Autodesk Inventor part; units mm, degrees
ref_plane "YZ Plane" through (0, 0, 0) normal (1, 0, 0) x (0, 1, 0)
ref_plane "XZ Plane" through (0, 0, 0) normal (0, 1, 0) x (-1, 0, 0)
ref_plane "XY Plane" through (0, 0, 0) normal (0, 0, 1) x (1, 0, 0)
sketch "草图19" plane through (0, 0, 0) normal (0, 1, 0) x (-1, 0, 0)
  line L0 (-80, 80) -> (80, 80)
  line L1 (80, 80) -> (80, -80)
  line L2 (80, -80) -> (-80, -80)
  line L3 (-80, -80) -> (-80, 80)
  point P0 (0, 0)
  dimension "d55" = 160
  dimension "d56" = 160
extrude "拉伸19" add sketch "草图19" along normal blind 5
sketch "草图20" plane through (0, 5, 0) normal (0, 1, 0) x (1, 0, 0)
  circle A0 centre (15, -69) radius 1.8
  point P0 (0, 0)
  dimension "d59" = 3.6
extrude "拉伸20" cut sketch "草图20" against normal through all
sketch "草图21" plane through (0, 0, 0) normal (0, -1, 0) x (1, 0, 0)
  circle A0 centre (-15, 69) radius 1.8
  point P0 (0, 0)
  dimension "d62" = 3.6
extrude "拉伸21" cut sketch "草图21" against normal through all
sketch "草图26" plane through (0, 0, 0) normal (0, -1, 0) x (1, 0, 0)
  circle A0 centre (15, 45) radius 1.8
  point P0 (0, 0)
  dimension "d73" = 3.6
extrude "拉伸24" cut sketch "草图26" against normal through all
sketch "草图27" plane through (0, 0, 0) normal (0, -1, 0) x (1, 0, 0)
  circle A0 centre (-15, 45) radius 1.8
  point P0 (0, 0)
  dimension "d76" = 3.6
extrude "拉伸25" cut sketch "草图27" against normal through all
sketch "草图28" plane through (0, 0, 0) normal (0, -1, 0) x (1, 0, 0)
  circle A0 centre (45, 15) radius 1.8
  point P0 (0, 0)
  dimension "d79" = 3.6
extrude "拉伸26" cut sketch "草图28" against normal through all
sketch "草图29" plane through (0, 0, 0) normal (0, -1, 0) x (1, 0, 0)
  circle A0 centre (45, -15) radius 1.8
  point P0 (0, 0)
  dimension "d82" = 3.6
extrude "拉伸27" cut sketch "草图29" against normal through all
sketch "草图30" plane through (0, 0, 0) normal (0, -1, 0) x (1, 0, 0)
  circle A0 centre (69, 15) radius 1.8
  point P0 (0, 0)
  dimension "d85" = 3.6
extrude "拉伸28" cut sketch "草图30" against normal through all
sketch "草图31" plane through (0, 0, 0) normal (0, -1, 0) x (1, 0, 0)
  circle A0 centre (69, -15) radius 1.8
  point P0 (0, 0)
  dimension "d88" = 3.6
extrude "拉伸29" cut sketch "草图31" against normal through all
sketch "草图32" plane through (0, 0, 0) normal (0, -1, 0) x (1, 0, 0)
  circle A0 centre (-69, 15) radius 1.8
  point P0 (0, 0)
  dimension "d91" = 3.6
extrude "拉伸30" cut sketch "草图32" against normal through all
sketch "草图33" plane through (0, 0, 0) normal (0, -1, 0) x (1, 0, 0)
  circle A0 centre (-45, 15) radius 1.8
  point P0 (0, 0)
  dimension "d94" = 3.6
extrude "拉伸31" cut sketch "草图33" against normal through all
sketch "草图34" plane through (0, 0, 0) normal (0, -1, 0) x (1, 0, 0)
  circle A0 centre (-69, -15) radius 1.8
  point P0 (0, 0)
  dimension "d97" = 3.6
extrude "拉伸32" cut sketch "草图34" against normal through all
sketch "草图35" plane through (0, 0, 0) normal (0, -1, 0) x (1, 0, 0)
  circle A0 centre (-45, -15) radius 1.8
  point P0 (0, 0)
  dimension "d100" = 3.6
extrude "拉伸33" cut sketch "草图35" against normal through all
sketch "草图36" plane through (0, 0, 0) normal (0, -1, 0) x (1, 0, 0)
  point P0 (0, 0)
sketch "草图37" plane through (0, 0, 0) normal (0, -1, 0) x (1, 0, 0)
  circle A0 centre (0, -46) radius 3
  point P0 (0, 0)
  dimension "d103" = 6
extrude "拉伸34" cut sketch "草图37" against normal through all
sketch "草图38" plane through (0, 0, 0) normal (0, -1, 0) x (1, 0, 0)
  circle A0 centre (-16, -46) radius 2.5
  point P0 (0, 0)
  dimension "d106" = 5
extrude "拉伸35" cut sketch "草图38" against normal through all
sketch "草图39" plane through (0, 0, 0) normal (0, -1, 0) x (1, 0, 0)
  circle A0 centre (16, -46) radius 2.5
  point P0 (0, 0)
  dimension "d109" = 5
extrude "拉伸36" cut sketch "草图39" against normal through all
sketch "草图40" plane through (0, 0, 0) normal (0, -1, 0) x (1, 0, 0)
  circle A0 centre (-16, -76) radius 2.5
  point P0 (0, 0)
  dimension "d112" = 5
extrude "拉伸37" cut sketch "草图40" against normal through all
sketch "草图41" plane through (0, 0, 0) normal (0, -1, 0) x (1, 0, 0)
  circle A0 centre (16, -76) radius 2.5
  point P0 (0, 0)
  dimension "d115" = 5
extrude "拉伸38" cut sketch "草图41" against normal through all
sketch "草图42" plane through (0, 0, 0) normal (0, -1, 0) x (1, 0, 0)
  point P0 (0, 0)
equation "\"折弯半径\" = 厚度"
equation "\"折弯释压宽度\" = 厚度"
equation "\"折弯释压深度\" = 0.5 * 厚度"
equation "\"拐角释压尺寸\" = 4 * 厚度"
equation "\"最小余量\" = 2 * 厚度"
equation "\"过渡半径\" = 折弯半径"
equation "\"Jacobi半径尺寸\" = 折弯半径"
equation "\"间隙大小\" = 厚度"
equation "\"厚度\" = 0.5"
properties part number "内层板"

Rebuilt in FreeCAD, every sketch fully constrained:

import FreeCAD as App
import Part
import Sketcher


def add_polygon(sketch, points):
    """Adds a closed chain of lines whose ends are joined by coincident constraints."""
    first, n = sketch.GeometryCount, len(points)
    for a, b in zip(points, points[1:] + points[:1]):
        sketch.addGeometry(Part.LineSegment(App.Vector(*a, 0), App.Vector(*b, 0)), False)
    for i in range(n):
        sketch.addConstraint(Sketcher.Constraint("Coincident", first + i, 2, first + (i + 1) % n, 1))

doc = App.newDocument("Part")
body = doc.addObject("PartDesign::Body", "Body")

# Sketch on XZ plane
sketch1 = body.newObject("Sketcher::SketchObject", "Sketch")
sketch1.AttachmentSupport = (doc.getObject("XZ_Plane"), [""])
sketch1.MapMode = "FlatFace"
add_polygon(sketch1, [(-80, 80), (80, 80), (80, -80), (-80, -80)])  # lines 0-3
sketch1.addConstraint(Sketcher.Constraint("Horizontal", 0))
sketch1.addConstraint(Sketcher.Constraint("Vertical", 1))
sketch1.addConstraint(Sketcher.Constraint("Horizontal", 2))
sketch1.addConstraint(Sketcher.Constraint("Vertical", 3))
sketch1.addConstraint(Sketcher.Constraint("Symmetric", 0, 2, 2, 2, -1, 1))
sketch1.addConstraint(Sketcher.Constraint("Equal", 2, 1))
sketch1.addConstraint(Sketcher.Constraint("DistanceX", 0, 1, 0, 2, 160.0))
pad1 = body.newObject("PartDesign::Pad", "Pad")
pad1.Profile = sketch1
pad1.Length = 5
pad1.Reversed = True

# Sketch on XZ plane
sketch2 = body.newObject("Sketcher::SketchObject", "Sketch001")
sketch2.AttachmentSupport = (doc.getObject("XZ_Plane"), [""])
sketch2.MapMode = "FlatFace"
sketch2.AttachmentOffset = App.Placement(App.Vector(0, 0, -5), App.Rotation())
sketch2.addGeometry(Part.Circle(App.Vector(15, 69, 0), App.Vector(0, 0, 1), 1.8), False)
sketch2.addConstraint(Sketcher.Constraint("Diameter", 0, 3.6))
sketch2.addConstraint(Sketcher.Constraint("DistanceX", -1, 1, 0, 3, 15.0))
sketch2.addConstraint(Sketcher.Constraint("DistanceY", -1, 1, 0, 3, 69.0))
pocket1 = body.newObject("PartDesign::Pocket", "Pocket")
pocket1.Profile = sketch2
pocket1.Type = "ThroughAll"
pocket1.Reversed = True

# Sketch on XZ plane
sketch3 = body.newObject("Sketcher::SketchObject", "Sketch002")
sketch3.AttachmentSupport = (doc.getObject("XZ_Plane"), [""])
sketch3.MapMode = "FlatFace"
sketch3.addGeometry(Part.Circle(App.Vector(-15, 69, 0), App.Vector(0, 0, 1), 1.8), False)
sketch3.addConstraint(Sketcher.Constraint("Diameter", 0, 3.6))
sketch3.addConstraint(Sketcher.Constraint("DistanceX", 0, 3, -1, 1, 15.0))
sketch3.addConstraint(Sketcher.Constraint("DistanceY", -1, 1, 0, 3, 69.0))
pocket2 = body.newObject("PartDesign::Pocket", "Pocket001")
pocket2.Profile = sketch3
pocket2.Type = "ThroughAll"

# Sketch on XZ plane
sketch4 = body.newObject("Sketcher::SketchObject", "Sketch003")
sketch4.AttachmentSupport = (doc.getObject("XZ_Plane"), [""])
sketch4.MapMode = "FlatFace"
sketch4.addGeometry(Part.Circle(App.Vector(15, 45, 0), App.Vector(0, 0, 1), 1.8), False)
sketch4.addConstraint(Sketcher.Constraint("Diameter", 0, 3.6))
sketch4.addConstraint(Sketcher.Constraint("DistanceX", -1, 1, 0, 3, 15.0))
sketch4.addConstraint(Sketcher.Constraint("DistanceY", -1, 1, 0, 3, 45.0))
pocket3 = body.newObject("PartDesign::Pocket", "Pocket002")
pocket3.Profile = sketch4
pocket3.Type = "ThroughAll"

# Sketch on XZ plane
sketch5 = body.newObject("Sketcher::SketchObject", "Sketch004")
sketch5.AttachmentSupport = (doc.getObject("XZ_Plane"), [""])
sketch5.MapMode = "FlatFace"
sketch5.addGeometry(Part.Circle(App.Vector(-15, 45, 0), App.Vector(0, 0, 1), 1.8), False)
sketch5.addConstraint(Sketcher.Constraint("Diameter", 0, 3.6))
sketch5.addConstraint(Sketcher.Constraint("DistanceX", 0, 3, -1, 1, 15.0))
sketch5.addConstraint(Sketcher.Constraint("DistanceY", -1, 1, 0, 3, 45.0))
pocket4 = body.newObject("PartDesign::Pocket", "Pocket003")
pocket4.Profile = sketch5
pocket4.Type = "ThroughAll"

# Sketch on XZ plane
sketch6 = body.newObject("Sketcher::SketchObject", "Sketch005")
sketch6.AttachmentSupport = (doc.getObject("XZ_Plane"), [""])
sketch6.MapMode = "FlatFace"
sketch6.addGeometry(Part.Circle(App.Vector(45, 15, 0), App.Vector(0, 0, 1), 1.8), False)
sketch6.addConstraint(Sketcher.Constraint("Diameter", 0, 3.6))
sketch6.addConstraint(Sketcher.Constraint("DistanceX", -1, 1, 0, 3, 45.0))
sketch6.addConstraint(Sketcher.Constraint("DistanceY", -1, 1, 0, 3, 15.0))
pocket5 = body.newObject("PartDesign::Pocket", "Pocket004")
pocket5.Profile = sketch6
pocket5.Type = "ThroughAll"

# Sketch on XZ plane
sketch7 = body.newObject("Sketcher::SketchObject", "Sketch006")
sketch7.AttachmentSupport = (doc.getObject("XZ_Plane"), [""])
sketch7.MapMode = "FlatFace"
sketch7.addGeometry(Part.Circle(App.Vector(45, -15, 0), App.Vector(0, 0, 1), 1.8), False)
sketch7.addConstraint(Sketcher.Constraint("Diameter", 0, 3.6))
sketch7.addConstraint(Sketcher.Constraint("DistanceX", -1, 1, 0, 3, 45.0))
sketch7.addConstraint(Sketcher.Constraint("DistanceY", 0, 3, -1, 1, 15.0))
pocket6 = body.newObject("PartDesign::Pocket", "Pocket005")
pocket6.Profile = sketch7
pocket6.Type = "ThroughAll"

# Sketch on XZ plane
sketch8 = body.newObject("Sketcher::SketchObject", "Sketch007")
sketch8.AttachmentSupport = (doc.getObject("XZ_Plane"), [""])
sketch8.MapMode = "FlatFace"
sketch8.addGeometry(Part.Circle(App.Vector(69, 15, 0), App.Vector(0, 0, 1), 1.8), False)
sketch8.addConstraint(Sketcher.Constraint("Diameter", 0, 3.6))
sketch8.addConstraint(Sketcher.Constraint("DistanceX", -1, 1, 0, 3, 69.0))
sketch8.addConstraint(Sketcher.Constraint("DistanceY", -1, 1, 0, 3, 15.0))
pocket7 = body.newObject("PartDesign::Pocket", "Pocket006")
pocket7.Profile = sketch8
pocket7.Type = "ThroughAll"

# Sketch on XZ plane
sketch9 = body.newObject("Sketcher::SketchObject", "Sketch008")
sketch9.AttachmentSupport = (doc.getObject("XZ_Plane"), [""])
sketch9.MapMode = "FlatFace"
sketch9.addGeometry(Part.Circle(App.Vector(69, -15, 0), App.Vector(0, 0, 1), 1.8), False)
sketch9.addConstraint(Sketcher.Constraint("Diameter", 0, 3.6))
sketch9.addConstraint(Sketcher.Constraint("DistanceX", -1, 1, 0, 3, 69.0))
sketch9.addConstraint(Sketcher.Constraint("DistanceY", 0, 3, -1, 1, 15.0))
pocket8 = body.newObject("PartDesign::Pocket", "Pocket007")
pocket8.Profile = sketch9
pocket8.Type = "ThroughAll"

# Sketch on XZ plane
sketch10 = body.newObject("Sketcher::SketchObject", "Sketch009")
sketch10.AttachmentSupport = (doc.getObject("XZ_Plane"), [""])
sketch10.MapMode = "FlatFace"
sketch10.addGeometry(Part.Circle(App.Vector(-69, 15, 0), App.Vector(0, 0, 1), 1.8), False)
sketch10.addConstraint(Sketcher.Constraint("Diameter", 0, 3.6))
sketch10.addConstraint(Sketcher.Constraint("DistanceX", 0, 3, -1, 1, 69.0))
sketch10.addConstraint(Sketcher.Constraint("DistanceY", -1, 1, 0, 3, 15.0))
pocket9 = body.newObject("PartDesign::Pocket", "Pocket008")
pocket9.Profile = sketch10
pocket9.Type = "ThroughAll"

# Sketch on XZ plane
sketch11 = body.newObject("Sketcher::SketchObject", "Sketch010")
sketch11.AttachmentSupport = (doc.getObject("XZ_Plane"), [""])
sketch11.MapMode = "FlatFace"
sketch11.addGeometry(Part.Circle(App.Vector(-45, 15, 0), App.Vector(0, 0, 1), 1.8), False)
sketch11.addConstraint(Sketcher.Constraint("Diameter", 0, 3.6))
sketch11.addConstraint(Sketcher.Constraint("DistanceX", 0, 3, -1, 1, 45.0))
sketch11.addConstraint(Sketcher.Constraint("DistanceY", -1, 1, 0, 3, 15.0))
pocket10 = body.newObject("PartDesign::Pocket", "Pocket009")
pocket10.Profile = sketch11
pocket10.Type = "ThroughAll"

# Sketch on XZ plane
sketch12 = body.newObject("Sketcher::SketchObject", "Sketch011")
sketch12.AttachmentSupport = (doc.getObject("XZ_Plane"), [""])
sketch12.MapMode = "FlatFace"
sketch12.addGeometry(Part.Circle(App.Vector(-69, -15, 0), App.Vector(0, 0, 1), 1.8), False)
sketch12.addConstraint(Sketcher.Constraint("Diameter", 0, 3.6))
sketch12.addConstraint(Sketcher.Constraint("DistanceX", 0, 3, -1, 1, 69.0))
sketch12.addConstraint(Sketcher.Constraint("DistanceY", 0, 3, -1, 1, 15.0))
pocket11 = body.newObject("PartDesign::Pocket", "Pocket010")
pocket11.Profile = sketch12
pocket11.Type = "ThroughAll"

# Sketch on XZ plane
sketch13 = body.newObject("Sketcher::SketchObject", "Sketch012")
sketch13.AttachmentSupport = (doc.getObject("XZ_Plane"), [""])
sketch13.MapMode = "FlatFace"
sketch13.addGeometry(Part.Circle(App.Vector(-45, -15, 0), App.Vector(0, 0, 1), 1.8), False)
sketch13.addConstraint(Sketcher.Constraint("Diameter", 0, 3.6))
sketch13.addConstraint(Sketcher.Constraint("DistanceX", 0, 3, -1, 1, 45.0))
sketch13.addConstraint(Sketcher.Constraint("DistanceY", 0, 3, -1, 1, 15.0))
pocket12 = body.newObject("PartDesign::Pocket", "Pocket011")
pocket12.Profile = sketch13
pocket12.Type = "ThroughAll"

# Sketch on XZ plane
sketch14 = body.newObject("Sketcher::SketchObject", "Sketch013")
sketch14.AttachmentSupport = (doc.getObject("XZ_Plane"), [""])
sketch14.MapMode = "FlatFace"
sketch14.addGeometry(Part.Circle(App.Vector(0, -46, 0), App.Vector(0, 0, 1), 3), False)
sketch14.addConstraint(Sketcher.Constraint("PointOnObject", 0, 3, -2))
sketch14.addConstraint(Sketcher.Constraint("Diameter", 0, 6.0))
sketch14.addConstraint(Sketcher.Constraint("DistanceY", 0, 3, -1, 1, 46.0))
pocket13 = body.newObject("PartDesign::Pocket", "Pocket012")
pocket13.Profile = sketch14
pocket13.Type = "ThroughAll"

# Sketch on XZ plane
sketch15 = body.newObject("Sketcher::SketchObject", "Sketch014")
sketch15.AttachmentSupport = (doc.getObject("XZ_Plane"), [""])
sketch15.MapMode = "FlatFace"
sketch15.addGeometry(Part.Circle(App.Vector(-16, -46, 0), App.Vector(0, 0, 1), 2.5), False)
sketch15.addConstraint(Sketcher.Constraint("Diameter", 0, 5.0))
sketch15.addConstraint(Sketcher.Constraint("DistanceX", 0, 3, -1, 1, 16.0))
sketch15.addConstraint(Sketcher.Constraint("DistanceY", 0, 3, -1, 1, 46.0))
pocket14 = body.newObject("PartDesign::Pocket", "Pocket013")
pocket14.Profile = sketch15
pocket14.Type = "ThroughAll"

# Sketch on XZ plane
sketch16 = body.newObject("Sketcher::SketchObject", "Sketch015")
sketch16.AttachmentSupport = (doc.getObject("XZ_Plane"), [""])
sketch16.MapMode = "FlatFace"
sketch16.addGeometry(Part.Circle(App.Vector(16, -46, 0), App.Vector(0, 0, 1), 2.5), False)
sketch16.addConstraint(Sketcher.Constraint("Diameter", 0, 5.0))
sketch16.addConstraint(Sketcher.Constraint("DistanceX", -1, 1, 0, 3, 16.0))
sketch16.addConstraint(Sketcher.Constraint("DistanceY", 0, 3, -1, 1, 46.0))
pocket15 = body.newObject("PartDesign::Pocket", "Pocket014")
pocket15.Profile = sketch16
pocket15.Type = "ThroughAll"

# Sketch on XZ plane
sketch17 = body.newObject("Sketcher::SketchObject", "Sketch016")
sketch17.AttachmentSupport = (doc.getObject("XZ_Plane"), [""])
sketch17.MapMode = "FlatFace"
sketch17.addGeometry(Part.Circle(App.Vector(-16, -76, 0), App.Vector(0, 0, 1), 2.5), False)
sketch17.addConstraint(Sketcher.Constraint("Diameter", 0, 5.0))
sketch17.addConstraint(Sketcher.Constraint("DistanceX", 0, 3, -1, 1, 16.0))
sketch17.addConstraint(Sketcher.Constraint("DistanceY", 0, 3, -1, 1, 76.0))
pocket16 = body.newObject("PartDesign::Pocket", "Pocket015")
pocket16.Profile = sketch17
pocket16.Type = "ThroughAll"

# Sketch on XZ plane
sketch18 = body.newObject("Sketcher::SketchObject", "Sketch017")
sketch18.AttachmentSupport = (doc.getObject("XZ_Plane"), [""])
sketch18.MapMode = "FlatFace"
sketch18.addGeometry(Part.Circle(App.Vector(16, -76, 0), App.Vector(0, 0, 1), 2.5), False)
sketch18.addConstraint(Sketcher.Constraint("Diameter", 0, 5.0))
sketch18.addConstraint(Sketcher.Constraint("DistanceX", -1, 1, 0, 3, 16.0))
sketch18.addConstraint(Sketcher.Constraint("DistanceY", 0, 3, -1, 1, 76.0))
pocket17 = body.newObject("PartDesign::Pocket", "Pocket016")
pocket17.Profile = sketch18
pocket17.Type = "ThroughAll"

doc.recompute()
